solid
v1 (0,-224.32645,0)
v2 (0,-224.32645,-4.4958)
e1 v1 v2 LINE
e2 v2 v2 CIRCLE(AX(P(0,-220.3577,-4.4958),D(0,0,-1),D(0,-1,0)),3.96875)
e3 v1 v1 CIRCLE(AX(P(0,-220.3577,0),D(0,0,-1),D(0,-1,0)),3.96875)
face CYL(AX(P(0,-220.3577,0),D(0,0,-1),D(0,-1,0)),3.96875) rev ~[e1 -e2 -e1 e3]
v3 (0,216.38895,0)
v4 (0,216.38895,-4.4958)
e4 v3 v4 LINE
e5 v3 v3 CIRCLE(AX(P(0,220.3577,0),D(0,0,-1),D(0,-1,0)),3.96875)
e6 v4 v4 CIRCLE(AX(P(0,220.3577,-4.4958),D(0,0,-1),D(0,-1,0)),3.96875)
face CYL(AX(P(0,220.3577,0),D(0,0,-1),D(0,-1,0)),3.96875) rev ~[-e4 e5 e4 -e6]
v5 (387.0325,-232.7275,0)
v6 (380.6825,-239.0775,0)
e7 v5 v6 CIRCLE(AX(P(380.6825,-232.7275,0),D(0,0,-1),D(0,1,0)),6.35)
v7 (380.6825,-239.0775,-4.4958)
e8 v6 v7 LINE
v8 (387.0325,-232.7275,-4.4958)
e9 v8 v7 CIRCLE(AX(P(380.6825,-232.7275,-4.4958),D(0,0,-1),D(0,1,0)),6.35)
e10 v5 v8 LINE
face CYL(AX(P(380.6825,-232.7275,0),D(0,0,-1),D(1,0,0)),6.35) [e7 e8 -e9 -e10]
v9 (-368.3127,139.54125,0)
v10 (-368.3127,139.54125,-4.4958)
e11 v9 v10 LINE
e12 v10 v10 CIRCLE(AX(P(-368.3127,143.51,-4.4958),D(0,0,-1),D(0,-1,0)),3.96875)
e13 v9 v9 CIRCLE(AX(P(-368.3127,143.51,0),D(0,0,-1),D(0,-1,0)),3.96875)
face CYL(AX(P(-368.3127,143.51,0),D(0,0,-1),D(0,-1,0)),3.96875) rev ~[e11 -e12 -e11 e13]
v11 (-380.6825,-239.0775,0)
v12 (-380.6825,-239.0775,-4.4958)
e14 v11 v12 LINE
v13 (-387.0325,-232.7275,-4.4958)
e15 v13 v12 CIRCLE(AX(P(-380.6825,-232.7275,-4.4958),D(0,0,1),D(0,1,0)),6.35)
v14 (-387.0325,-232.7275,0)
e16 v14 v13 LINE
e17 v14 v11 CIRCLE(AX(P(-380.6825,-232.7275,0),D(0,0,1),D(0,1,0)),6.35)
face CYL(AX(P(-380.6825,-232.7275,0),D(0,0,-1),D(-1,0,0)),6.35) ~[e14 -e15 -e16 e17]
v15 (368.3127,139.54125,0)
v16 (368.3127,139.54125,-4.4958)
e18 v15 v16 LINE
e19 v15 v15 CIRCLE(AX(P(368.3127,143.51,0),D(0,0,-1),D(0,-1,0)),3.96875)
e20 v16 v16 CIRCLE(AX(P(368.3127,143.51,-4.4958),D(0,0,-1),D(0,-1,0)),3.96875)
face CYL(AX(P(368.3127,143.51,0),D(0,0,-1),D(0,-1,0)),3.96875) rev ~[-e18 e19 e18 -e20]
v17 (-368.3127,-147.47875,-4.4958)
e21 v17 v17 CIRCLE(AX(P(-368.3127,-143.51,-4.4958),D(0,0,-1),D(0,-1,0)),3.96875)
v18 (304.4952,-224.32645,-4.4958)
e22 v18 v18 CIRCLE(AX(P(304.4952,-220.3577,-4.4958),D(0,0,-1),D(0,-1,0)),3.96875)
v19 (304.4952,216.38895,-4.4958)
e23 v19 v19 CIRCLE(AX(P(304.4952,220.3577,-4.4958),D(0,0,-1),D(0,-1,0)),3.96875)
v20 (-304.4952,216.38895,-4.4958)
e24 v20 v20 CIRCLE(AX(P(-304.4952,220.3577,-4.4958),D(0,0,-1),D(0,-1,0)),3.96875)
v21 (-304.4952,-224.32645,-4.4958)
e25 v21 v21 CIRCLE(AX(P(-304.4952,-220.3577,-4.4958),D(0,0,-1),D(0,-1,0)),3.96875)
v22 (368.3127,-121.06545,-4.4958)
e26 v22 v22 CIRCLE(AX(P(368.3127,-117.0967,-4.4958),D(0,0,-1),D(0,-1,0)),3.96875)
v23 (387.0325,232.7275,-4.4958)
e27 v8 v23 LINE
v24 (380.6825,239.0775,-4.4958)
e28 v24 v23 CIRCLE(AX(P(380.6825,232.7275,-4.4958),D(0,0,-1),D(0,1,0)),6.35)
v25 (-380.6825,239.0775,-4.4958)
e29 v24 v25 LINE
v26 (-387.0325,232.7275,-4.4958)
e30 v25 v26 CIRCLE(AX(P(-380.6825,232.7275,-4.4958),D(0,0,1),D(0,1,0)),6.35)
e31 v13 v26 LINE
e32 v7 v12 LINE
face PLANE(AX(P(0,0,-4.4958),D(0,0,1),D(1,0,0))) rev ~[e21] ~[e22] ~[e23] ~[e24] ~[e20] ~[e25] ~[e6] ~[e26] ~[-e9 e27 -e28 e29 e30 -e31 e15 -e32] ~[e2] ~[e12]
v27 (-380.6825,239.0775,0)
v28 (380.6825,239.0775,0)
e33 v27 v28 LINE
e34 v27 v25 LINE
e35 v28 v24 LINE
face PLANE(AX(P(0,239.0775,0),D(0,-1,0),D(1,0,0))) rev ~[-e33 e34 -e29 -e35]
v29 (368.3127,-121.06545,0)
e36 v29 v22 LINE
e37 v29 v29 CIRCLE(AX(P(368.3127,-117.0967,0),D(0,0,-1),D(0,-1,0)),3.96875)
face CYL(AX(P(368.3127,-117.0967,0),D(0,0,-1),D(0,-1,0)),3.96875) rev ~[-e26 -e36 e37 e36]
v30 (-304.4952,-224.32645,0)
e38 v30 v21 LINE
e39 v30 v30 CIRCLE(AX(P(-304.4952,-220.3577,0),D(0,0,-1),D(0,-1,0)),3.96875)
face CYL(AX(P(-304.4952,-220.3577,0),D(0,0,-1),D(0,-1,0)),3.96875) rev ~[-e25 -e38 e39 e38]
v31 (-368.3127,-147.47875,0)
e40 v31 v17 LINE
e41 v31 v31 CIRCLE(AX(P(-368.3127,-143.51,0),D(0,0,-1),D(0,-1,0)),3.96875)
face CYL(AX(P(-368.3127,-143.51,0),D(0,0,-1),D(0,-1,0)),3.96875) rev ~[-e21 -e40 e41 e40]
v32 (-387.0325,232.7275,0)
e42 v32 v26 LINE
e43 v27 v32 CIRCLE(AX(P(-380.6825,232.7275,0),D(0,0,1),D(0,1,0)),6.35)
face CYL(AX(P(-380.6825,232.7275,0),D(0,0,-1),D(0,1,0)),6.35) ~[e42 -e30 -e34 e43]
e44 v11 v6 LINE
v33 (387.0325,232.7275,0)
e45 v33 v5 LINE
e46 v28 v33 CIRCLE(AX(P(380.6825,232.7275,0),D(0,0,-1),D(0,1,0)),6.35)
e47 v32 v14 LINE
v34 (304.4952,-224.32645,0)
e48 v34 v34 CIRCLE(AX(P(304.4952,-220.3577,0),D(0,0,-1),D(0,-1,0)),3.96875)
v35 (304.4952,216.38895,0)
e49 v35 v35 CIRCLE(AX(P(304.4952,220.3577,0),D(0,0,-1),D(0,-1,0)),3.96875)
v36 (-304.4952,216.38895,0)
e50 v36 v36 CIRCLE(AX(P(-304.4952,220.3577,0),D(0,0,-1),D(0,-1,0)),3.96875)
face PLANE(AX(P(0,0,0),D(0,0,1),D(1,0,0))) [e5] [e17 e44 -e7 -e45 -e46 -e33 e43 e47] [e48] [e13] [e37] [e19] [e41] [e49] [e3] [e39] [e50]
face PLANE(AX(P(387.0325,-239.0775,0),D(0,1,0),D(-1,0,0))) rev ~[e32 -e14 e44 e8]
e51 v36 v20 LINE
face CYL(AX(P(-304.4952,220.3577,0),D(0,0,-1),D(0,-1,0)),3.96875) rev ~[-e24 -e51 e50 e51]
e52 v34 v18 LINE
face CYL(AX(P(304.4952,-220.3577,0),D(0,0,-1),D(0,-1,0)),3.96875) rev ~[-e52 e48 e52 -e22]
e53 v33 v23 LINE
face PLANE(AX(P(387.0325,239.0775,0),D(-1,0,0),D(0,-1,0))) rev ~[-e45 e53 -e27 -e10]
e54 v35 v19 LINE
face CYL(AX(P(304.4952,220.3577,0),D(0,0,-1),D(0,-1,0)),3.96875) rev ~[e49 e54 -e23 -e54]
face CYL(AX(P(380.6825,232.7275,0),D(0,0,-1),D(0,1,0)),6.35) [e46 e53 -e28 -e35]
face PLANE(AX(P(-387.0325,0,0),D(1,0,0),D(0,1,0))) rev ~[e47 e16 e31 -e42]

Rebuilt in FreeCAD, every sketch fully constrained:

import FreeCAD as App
import Part
import Sketcher

V = App.Vector
Q = App.Units.Quantity


def edges_at(feature, points):
    """Names of the edges that pass closest to the given points."""
    edges = feature.Shape.Edges
    near = lambda p: min(range(len(edges)), key=lambda i: edges[i].distToShape(Part.Vertex(*p))[0])
    return sorted({f"Edge{near(p) + 1}" for p in points})

doc = App.newDocument("Part")
body = doc.addObject("PartDesign::Body", "Body")

# Sketch on XY plane
sketch1 = doc.addObject("Sketcher::SketchObject", "Sketch")
body.addObject(sketch1)
sketch1.AttachmentSupport = (doc.XY_Plane, [""])
sketch1.MapMode = "FlatFace"
sketch1.addGeometry(Part.LineSegment(V(387.0325, 239.0775, 0), V(-387.0325, 239.0775, 0)), False)
sketch1.addGeometry(Part.LineSegment(V(-387.0325, 239.0775, 0), V(-387.0325, -239.0775, 0)), False)
sketch1.addGeometry(Part.LineSegment(V(-387.0325, -239.0775, 0), V(387.0325, -239.0775, 0)), False)
sketch1.addGeometry(Part.LineSegment(V(387.0325, -239.0775, 0), V(387.0325, 239.0775, 0)), False)
sketch1.addConstraint(Sketcher.Constraint("Coincident", 0, 2, 1, 1))
sketch1.addConstraint(Sketcher.Constraint("Coincident", 1, 2, 2, 1))
sketch1.addConstraint(Sketcher.Constraint("Coincident", 2, 2, 3, 1))
sketch1.addConstraint(Sketcher.Constraint("Coincident", 3, 2, 0, 1))
sketch1.addConstraint(Sketcher.Constraint("Horizontal", 0))
sketch1.addConstraint(Sketcher.Constraint("Vertical", 1))
sketch1.addConstraint(Sketcher.Constraint("Horizontal", 2))
sketch1.addConstraint(Sketcher.Constraint("Vertical", 3))
sketch1.addConstraint(Sketcher.Constraint("Symmetric", 0, 2, 2, 2, -1, 1))
sketch1.addConstraint(Sketcher.Constraint("DistanceX", 0, 2, 0, 1, Q("30.475 in")))
sketch1.addConstraint(Sketcher.Constraint("DistanceY", 1, 2, 1, 1, Q("18.825 in")))
pad1 = doc.addObject("PartDesign::Pad", "Pad")
body.addObject(pad1)
pad1.Profile = sketch1
pad1.Length = Q("0.177 in")
pad1.Reversed = True

# Sketch on XY plane
sketch2 = doc.addObject("Sketcher::SketchObject", "Sketch001")
body.addObject(sketch2)
sketch2.AttachmentSupport = (doc.XY_Plane, [""])
sketch2.MapMode = "FlatFace"
sketch2.addGeometry(Part.Circle(V(-304.4952, 220.3577, 0), V(0, 0, 1), 3.96875), False)
sketch2.addGeometry(Part.Circle(V(0, 220.3577, 0), V(0, 0, 1), 3.96875), False)
sketch2.addGeometry(Part.Circle(V(304.4952, 220.3577, 0), V(0, 0, 1), 3.96875), False)
sketch2.addGeometry(Part.Circle(V(-304.4952, -220.3577, 0), V(0, 0, 1), 3.96875), False)
sketch2.addGeometry(Part.Circle(V(0, -220.3577, 0), V(0, 0, 1), 3.96875), False)
sketch2.addGeometry(Part.Circle(V(304.4952, -220.3577, 0), V(0, 0, 1), 3.96875), False)
sketch2.addGeometry(Part.Circle(V(-368.3127, 143.51, 0), V(0, 0, 1), 3.96875), False)
sketch2.addGeometry(Part.Circle(V(-368.3127, -143.51, 0), V(0, 0, 1), 3.96875), False)
sketch2.addGeometry(Part.Circle(V(368.3127, 143.51, 0), V(0, 0, 1), 3.96875), False)
sketch2.addGeometry(Part.Circle(V(368.3127, -117.0967, 0), V(0, 0, 1), 3.96875), False)
sketch2.addConstraint(Sketcher.Constraint("Equal", 0, 1))
sketch2.addConstraint(Sketcher.Constraint("Equal", 1, 2))
sketch2.addConstraint(Sketcher.Constraint("Equal", 2, 3))
sketch2.addConstraint(Sketcher.Constraint("Equal", 3, 4))
sketch2.addConstraint(Sketcher.Constraint("Equal", 4, 5))
sketch2.addConstraint(Sketcher.Constraint("Equal", 5, 6))
sketch2.addConstraint(Sketcher.Constraint("Equal", 6, 7))
sketch2.addConstraint(Sketcher.Constraint("Equal", 7, 8))
sketch2.addConstraint(Sketcher.Constraint("Equal", 8, 9))
sketch2.addConstraint(Sketcher.Constraint("Symmetric", 2, 3, 3, 3, -1, 1))
sketch2.addConstraint(Sketcher.Constraint("Symmetric", 1, 3, 4, 3, -1, 1))
sketch2.addConstraint(Sketcher.Constraint("Symmetric", 0, 3, 5, 3, -1, 1))
sketch2.addConstraint(Sketcher.Constraint("Symmetric", 7, 3, 8, 3, -1, 1))
sketch2.addConstraint(Sketcher.Constraint("Symmetric", 0, 3, 2, 3, -2))
sketch2.addConstraint(Sketcher.Constraint("Symmetric", 6, 3, 8, 3, -2))
sketch2.addConstraint(Sketcher.Constraint("PointOnObject", 1, 3, -2))
sketch2.addConstraint(Sketcher.Constraint("Horizontal", 0, 3, 1, 3))
sketch2.addConstraint(Sketcher.Constraint("Vertical", 8, 3, 9, 3))
sketch2.addConstraint(Sketcher.Constraint("Diameter", 0, Q("0.3125 in")))
sketch2.addConstraint(Sketcher.Constraint("DistanceY", 7, 3, 6, 3, Q("11.3 in")))
sketch2.addConstraint(Sketcher.Constraint("DistanceX", 0, 3, -1, 1, Q("11.988 in")))
sketch2.addConstraint(Sketcher.Constraint("DistanceY", 3, 3, 0, 3, Q("17.351 in")))
sketch2.addConstraint(Sketcher.Constraint("DistanceX", 6, 3, -1, 1, Q("14.5005 in")))
sketch2.addConstraint(Sketcher.Constraint("DistanceY", 9, 3, -1, 1, Q("4.6101 in")))
doc.recompute()
hole = doc.addObject("PartDesign::Hole", "Hole")
body.addObject(hole)
hole.Profile = sketch2
hole.ThreadType = "None"
hole.Diameter = Q("0.3125 in")
hole.DepthType = "ThroughAll"
doc.recompute()

fillet = doc.addObject("PartDesign::Fillet", "Fillet")
body.addObject(fillet)
fillet.Base = (hole, edges_at(hole, [
    (387.033, 239.077, -2.248),
    (387.033, -239.077, -2.248),
    (-387.033, -239.077, -2.248),
    (-387.033, 239.077, -2.248),
]))
fillet.Radius = Q("0.25 in")

doc.recompute()
